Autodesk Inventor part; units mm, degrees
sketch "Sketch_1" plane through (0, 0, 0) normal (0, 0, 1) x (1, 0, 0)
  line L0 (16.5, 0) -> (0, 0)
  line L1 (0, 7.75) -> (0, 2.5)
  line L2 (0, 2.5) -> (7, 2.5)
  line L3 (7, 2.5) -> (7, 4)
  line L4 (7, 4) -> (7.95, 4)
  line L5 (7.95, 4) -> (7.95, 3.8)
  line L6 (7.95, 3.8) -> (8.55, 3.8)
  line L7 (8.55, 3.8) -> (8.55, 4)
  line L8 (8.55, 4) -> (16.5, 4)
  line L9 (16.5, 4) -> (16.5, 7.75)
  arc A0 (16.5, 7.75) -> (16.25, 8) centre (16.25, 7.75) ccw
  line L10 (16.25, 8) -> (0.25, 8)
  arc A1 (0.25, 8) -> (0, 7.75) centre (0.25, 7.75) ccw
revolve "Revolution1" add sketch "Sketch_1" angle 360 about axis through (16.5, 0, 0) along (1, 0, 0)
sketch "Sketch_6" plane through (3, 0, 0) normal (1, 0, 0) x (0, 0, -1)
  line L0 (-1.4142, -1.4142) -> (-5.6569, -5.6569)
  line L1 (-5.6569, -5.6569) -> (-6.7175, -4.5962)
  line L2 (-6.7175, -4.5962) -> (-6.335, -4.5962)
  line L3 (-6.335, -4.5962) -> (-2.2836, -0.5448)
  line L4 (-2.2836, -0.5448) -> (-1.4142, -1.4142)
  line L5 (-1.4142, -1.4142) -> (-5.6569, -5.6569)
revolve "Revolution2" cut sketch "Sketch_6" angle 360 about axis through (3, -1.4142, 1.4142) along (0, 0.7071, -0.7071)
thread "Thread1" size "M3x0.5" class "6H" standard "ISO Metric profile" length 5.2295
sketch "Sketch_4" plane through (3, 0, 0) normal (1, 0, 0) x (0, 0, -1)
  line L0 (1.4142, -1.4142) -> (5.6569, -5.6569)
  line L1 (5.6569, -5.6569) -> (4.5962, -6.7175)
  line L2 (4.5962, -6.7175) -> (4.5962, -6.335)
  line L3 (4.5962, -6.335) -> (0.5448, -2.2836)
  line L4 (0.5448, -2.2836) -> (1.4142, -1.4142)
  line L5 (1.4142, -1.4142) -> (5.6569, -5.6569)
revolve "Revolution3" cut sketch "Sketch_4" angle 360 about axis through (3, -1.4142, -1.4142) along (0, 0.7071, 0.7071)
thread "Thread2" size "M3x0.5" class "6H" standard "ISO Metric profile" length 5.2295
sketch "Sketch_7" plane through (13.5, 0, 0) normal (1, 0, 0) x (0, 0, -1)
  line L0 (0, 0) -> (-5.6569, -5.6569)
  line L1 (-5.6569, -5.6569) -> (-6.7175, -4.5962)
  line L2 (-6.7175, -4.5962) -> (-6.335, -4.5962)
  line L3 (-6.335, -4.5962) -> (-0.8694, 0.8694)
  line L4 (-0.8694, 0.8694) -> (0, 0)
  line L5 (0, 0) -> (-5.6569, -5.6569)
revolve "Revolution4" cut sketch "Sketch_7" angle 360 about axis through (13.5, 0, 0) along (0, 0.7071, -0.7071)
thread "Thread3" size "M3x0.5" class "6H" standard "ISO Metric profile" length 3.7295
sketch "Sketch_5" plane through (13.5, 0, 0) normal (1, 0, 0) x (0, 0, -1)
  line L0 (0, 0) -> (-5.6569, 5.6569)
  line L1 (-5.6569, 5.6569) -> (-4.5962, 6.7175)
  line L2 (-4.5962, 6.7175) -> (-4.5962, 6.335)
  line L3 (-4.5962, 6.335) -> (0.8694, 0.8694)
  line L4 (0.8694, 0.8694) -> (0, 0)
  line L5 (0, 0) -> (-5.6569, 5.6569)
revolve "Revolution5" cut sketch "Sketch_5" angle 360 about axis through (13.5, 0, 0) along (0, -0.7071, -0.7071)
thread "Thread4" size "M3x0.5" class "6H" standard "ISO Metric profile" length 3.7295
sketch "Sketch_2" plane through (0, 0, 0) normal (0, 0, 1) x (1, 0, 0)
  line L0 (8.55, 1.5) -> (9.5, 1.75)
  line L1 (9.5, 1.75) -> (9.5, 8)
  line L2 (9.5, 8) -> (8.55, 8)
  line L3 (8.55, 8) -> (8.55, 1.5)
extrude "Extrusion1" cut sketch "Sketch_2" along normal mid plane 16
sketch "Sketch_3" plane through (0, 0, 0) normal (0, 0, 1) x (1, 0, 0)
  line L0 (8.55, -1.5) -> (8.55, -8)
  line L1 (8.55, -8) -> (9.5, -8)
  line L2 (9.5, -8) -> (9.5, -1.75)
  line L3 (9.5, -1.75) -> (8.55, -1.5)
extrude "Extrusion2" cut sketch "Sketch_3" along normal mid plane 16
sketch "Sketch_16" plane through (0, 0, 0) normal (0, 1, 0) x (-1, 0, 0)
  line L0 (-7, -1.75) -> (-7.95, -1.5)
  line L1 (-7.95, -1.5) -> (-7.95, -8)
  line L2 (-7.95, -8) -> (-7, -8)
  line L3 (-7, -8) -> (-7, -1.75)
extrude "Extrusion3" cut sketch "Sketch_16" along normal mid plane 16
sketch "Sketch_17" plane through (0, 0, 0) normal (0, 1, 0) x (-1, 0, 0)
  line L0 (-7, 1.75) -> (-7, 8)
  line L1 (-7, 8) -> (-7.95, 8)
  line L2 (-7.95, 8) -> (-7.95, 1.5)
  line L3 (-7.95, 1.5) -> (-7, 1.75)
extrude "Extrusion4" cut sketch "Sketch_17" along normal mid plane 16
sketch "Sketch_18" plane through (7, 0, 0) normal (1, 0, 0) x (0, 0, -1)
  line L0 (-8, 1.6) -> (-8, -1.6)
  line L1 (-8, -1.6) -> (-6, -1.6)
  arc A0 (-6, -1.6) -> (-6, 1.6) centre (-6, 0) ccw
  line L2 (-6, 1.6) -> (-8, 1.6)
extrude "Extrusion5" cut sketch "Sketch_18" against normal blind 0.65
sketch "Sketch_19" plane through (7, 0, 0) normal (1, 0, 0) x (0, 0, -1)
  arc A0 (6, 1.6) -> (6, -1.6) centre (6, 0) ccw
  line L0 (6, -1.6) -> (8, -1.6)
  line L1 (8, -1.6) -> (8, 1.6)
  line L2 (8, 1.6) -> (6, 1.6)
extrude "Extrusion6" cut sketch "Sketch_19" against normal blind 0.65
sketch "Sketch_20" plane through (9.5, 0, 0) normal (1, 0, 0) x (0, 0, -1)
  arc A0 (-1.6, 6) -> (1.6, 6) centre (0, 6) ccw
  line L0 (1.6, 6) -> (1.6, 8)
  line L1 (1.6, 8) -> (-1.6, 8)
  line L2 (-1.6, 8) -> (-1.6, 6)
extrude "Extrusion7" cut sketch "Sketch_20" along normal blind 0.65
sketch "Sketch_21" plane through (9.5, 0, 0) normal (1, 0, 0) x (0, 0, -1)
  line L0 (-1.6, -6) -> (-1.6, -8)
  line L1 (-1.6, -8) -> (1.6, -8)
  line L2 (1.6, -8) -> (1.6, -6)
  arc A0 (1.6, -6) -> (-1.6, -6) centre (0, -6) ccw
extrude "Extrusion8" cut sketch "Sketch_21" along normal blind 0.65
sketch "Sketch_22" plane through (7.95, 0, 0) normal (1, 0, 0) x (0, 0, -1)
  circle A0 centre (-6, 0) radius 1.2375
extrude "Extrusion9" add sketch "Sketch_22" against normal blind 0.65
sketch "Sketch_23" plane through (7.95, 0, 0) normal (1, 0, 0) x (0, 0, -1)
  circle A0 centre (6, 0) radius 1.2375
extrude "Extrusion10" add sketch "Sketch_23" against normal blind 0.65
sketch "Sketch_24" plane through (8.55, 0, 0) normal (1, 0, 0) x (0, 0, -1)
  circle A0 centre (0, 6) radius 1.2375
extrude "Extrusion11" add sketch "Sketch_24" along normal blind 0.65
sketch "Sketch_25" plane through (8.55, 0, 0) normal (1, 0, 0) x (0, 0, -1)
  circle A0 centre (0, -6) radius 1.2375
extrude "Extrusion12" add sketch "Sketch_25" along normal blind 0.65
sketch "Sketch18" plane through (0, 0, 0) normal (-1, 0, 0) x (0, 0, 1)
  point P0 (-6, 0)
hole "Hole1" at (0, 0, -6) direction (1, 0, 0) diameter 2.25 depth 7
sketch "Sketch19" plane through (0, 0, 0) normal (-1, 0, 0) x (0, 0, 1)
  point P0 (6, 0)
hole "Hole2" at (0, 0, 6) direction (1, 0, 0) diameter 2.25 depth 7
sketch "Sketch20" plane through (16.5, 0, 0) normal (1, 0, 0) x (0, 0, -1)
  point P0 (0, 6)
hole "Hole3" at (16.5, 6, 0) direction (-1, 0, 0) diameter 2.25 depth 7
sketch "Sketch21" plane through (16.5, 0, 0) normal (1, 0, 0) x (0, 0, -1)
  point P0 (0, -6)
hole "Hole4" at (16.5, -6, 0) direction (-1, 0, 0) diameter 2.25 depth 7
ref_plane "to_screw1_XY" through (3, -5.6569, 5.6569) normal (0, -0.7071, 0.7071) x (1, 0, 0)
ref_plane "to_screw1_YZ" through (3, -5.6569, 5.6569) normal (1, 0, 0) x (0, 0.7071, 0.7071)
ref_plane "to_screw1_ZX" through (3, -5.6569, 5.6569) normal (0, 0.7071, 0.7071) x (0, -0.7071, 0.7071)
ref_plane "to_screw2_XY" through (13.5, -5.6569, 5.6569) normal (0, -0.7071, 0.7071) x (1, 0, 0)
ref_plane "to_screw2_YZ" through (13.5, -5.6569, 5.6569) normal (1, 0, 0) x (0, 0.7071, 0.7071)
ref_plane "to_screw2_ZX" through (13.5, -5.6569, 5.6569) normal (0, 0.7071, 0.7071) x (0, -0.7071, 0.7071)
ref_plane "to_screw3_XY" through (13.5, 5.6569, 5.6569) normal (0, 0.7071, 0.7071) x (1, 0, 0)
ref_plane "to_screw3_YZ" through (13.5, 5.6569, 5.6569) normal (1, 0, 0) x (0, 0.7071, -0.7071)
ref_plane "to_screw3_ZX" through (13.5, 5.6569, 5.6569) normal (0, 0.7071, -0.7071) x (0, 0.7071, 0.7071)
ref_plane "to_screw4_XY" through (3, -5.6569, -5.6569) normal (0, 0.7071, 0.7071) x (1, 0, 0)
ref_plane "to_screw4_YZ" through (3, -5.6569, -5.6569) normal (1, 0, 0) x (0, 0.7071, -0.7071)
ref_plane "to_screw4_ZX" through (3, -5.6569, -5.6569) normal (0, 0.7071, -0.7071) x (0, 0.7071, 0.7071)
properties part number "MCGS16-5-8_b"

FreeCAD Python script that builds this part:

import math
import FreeCAD as App
import Part
import Sketcher
Q = App.Units.Quantity

doc = App.newDocument("Part")
params = doc.addObject("Spreadsheet::Sheet", "Params")
for row, (alias, value) in enumerate([
    ("sketch1_width", "7 mm"),
    ("sketch1_width2", "16 mm"),
    ("sketch1_radius", "0.25 mm"),
    ("sketch1_width3", "0.6 mm"),
    ("sketch1_height", "1.5 mm"),
    ("revolution_angle", "360 deg"),
    ("sketch2_length", "6 mm"),
    ("sketch2_length2", "1.5 mm"),
    ("groove_angle", "360 deg"),
    ("sketch3_length", "6 mm"),
    ("sketch3_length2", "1.5 mm"),
    ("groove2_angle", "360 deg"),
    ("sketch4_length", "8 mm"),
    ("sketch4_length2", "1.5 mm"),
    ("groove3_angle", "360 deg"),
    ("sketch5_length", "8 mm"),
    ("sketch5_length2", "1.5 mm"),
    ("groove4_angle", "360 deg"),
    ("sketch6_height", "6.5 mm"),
    ("sketch6_width", "0.95 mm"),
    ("sketch6_height2", "6.25 mm"),
    ("pocket1_length", "16 mm"),
    ("sketch7_height", "6.5 mm"),
    ("sketch7_width", "0.95 mm"),
    ("sketch7_height2", "6.25 mm"),
    ("pocket2_length", "16 mm"),
    ("sketch8_height", "6.5 mm"),
    ("sketch8_width", "0.95 mm"),
    ("sketch8_height2", "6.25 mm"),
    ("pocket3_length", "16 mm"),
    ("sketch9_height", "6.5 mm"),
    ("sketch9_width", "0.95 mm"),
    ("sketch9_height2", "6.25 mm"),
    ("pocket4_length", "16 mm"),
    ("sketch10_radius", "1.6 mm"),
    ("sketch10_height", "2 mm"),
    ("pocket5_length", "0.65 mm"),
    ("sketch11_radius", "1.6 mm"),
    ("sketch11_height", "2 mm"),
    ("pocket6_length", "0.65 mm"),
    ("sketch12_radius", "1.6 mm"),
    ("sketch12_width", "2 mm"),
    ("pocket7_length", "0.65 mm"),
    ("sketch13_radius", "1.6 mm"),
    ("sketch13_width", "2 mm"),
    ("pocket8_length", "0.65 mm"),
    ("pad1_length", "0.65 mm"),
    ("pad2_length", "0.65 mm"),
    ("pad3_length", "0.65 mm"),
    ("pad4_length", "0.65 mm"),
    ("sketch18_diameter", "2.25 mm"),
    ("hole_diameter", "2.25 mm"),
    ("hole_depth", "7 mm"),
    ("sketch19_diameter", "2.25 mm"),
    ("hole2_diameter", "2.25 mm"),
    ("hole2_depth", "7 mm"),
    ("sketch20_diameter", "2.25 mm"),
    ("hole3_diameter", "2.25 mm"),
    ("hole3_depth", "7 mm"),
    ("sketch21_diameter", "2.25 mm"),
    ("hole4_diameter", "2.25 mm"),
    ("hole4_depth", "7 mm"),
], start=1):
    params.set(f"A{row}", alias)
    params.set(f"B{row}", "=" + value)
    params.setAlias(f"B{row}", alias)

body = doc.addObject("PartDesign::Body", "Body")

# Sketch on XY plane
sketch1 = body.newObject("Sketcher::SketchObject", "Sketch")
sketch1.AttachmentSupport = (doc.getObject("XY_Plane"), [""])
sketch1.MapMode = "FlatFace"
sketch1.addGeometry([
    Part.ArcOfCircle(Part.Circle(App.Vector(0.25, 7.75, 0), App.Vector(0, 0, 1), 0.25), math.radians(90), math.radians(180)),  # 0
    Part.LineSegment(App.Vector(0, 7.75, 0), App.Vector(0, 2.5, 0)),  # 1
    Part.LineSegment(App.Vector(0, 2.5, 0), App.Vector(7, 2.5, 0)),  # 2
    Part.LineSegment(App.Vector(7, 2.5, 0), App.Vector(7, 4, 0)),  # 3
    Part.LineSegment(App.Vector(7, 4, 0), App.Vector(7.95, 4, 0)),  # 4
    Part.LineSegment(App.Vector(7.95, 4, 0), App.Vector(7.95, 3.8, 0)),  # 5
    Part.LineSegment(App.Vector(7.95, 3.8, 0), App.Vector(8.55, 3.8, 0)),  # 6
    Part.LineSegment(App.Vector(8.55, 3.8, 0), App.Vector(8.55, 4, 0)),  # 7
    Part.LineSegment(App.Vector(8.55, 4, 0), App.Vector(16.5, 4, 0)),  # 8
    Part.LineSegment(App.Vector(16.5, 4, 0), App.Vector(16.5, 7.75, 0)),  # 9
    Part.ArcOfCircle(Part.Circle(App.Vector(16.25, 7.75, 0), App.Vector(0, 0, 1), 0.25), math.radians(0), math.radians(90)),  # 10
    Part.LineSegment(App.Vector(16.25, 8, 0), App.Vector(0.25, 8, 0)),  # 11
], False)
sketch1.addConstraint([
    Sketcher.Constraint("Tangent", 0, 2, 1, 1),
    Sketcher.Constraint("Coincident", 1, 2, 2, 1),
    Sketcher.Constraint("Coincident", 2, 2, 3, 1),
    Sketcher.Constraint("Coincident", 3, 2, 4, 1),
    Sketcher.Constraint("Coincident", 4, 2, 5, 1),
    Sketcher.Constraint("Coincident", 5, 2, 6, 1),
    Sketcher.Constraint("Coincident", 6, 2, 7, 1),
    Sketcher.Constraint("Coincident", 7, 2, 8, 1),
    Sketcher.Constraint("Coincident", 8, 2, 9, 1),
    Sketcher.Constraint("Tangent", 9, 2, 10, 1),
    Sketcher.Constraint("Tangent", 10, 2, 11, 1),
    Sketcher.Constraint("Tangent", 11, 2, 0, 1),
    Sketcher.Constraint("Vertical", 1),
    Sketcher.Constraint("Horizontal", 2),
    Sketcher.Constraint("Vertical", 3),
    Sketcher.Constraint("Horizontal", 4),
    Sketcher.Constraint("Vertical", 5),
    Sketcher.Constraint("Horizontal", 6),
    Sketcher.Constraint("Vertical", 7),
    Sketcher.Constraint("Horizontal", 8),
    Sketcher.Constraint("Vertical", 9),
    Sketcher.Constraint("Horizontal", 11),
    Sketcher.Constraint("Equal", 0, 10),
    Sketcher.Constraint("PointOnObject", 0, 2, -2),
    Sketcher.Constraint("Horizontal", 4, 2, 7, 2),
    Sketcher.Constraint("DistanceX", 2, 1, 2, 2, Q("7 mm")),
    Sketcher.Constraint("DistanceX", 11, 2, 11, 1, Q("16 mm")),
    Sketcher.Constraint("Radius", 0, Q("0.25 mm")),
    Sketcher.Constraint("DistanceX", 6, 1, 6, 2, Q("0.6 mm")),
    Sketcher.Constraint("DistanceY", 3, 1, 3, 2, Q("1.5 mm")),
    Sketcher.Constraint("DistanceY", 5, 2, 5, 1, Q("0.2 mm")),
    Sketcher.Constraint("DistanceY", -1, 1, 3, 2, Q("4 mm")),
    Sketcher.Constraint("DistanceY", -1, 1, 10, 2, Q("8 mm")),
    Sketcher.Constraint("DistanceX", 4, 1, 4, 2, Q("0.95 mm")),
])
sketch1.setExpression("Constraints[25]", "Params.sketch1_width")
sketch1.setExpression("Constraints[26]", "Params.sketch1_width2")
sketch1.setExpression("Constraints[27]", "Params.sketch1_radius")
sketch1.setExpression("Constraints[28]", "Params.sketch1_width3")
sketch1.setExpression("Constraints[29]", "Params.sketch1_height")
revolution = body.newObject("PartDesign::Revolution", "Revolution")
revolution.Profile = sketch1
revolution.ReferenceAxis = (sketch1, ["H_Axis"])
revolution.setExpression("Angle", "Params.revolution_angle")

# Sketch on YZ plane
sketch2 = body.newObject("Sketcher::SketchObject", "Sketch001")
sketch2.AttachmentSupport = (doc.getObject("YZ_Plane"), [""])
sketch2.MapMode = "FlatFace"
sketch2.AttachmentOffset = App.Placement(App.Vector(0, 0, 3), App.Rotation())
sketch2.addGeometry([
    Part.LineSegment(App.Vector(-5.66, 5.66, 0), App.Vector(-1.41, 1.41, 0)),  # 0
    Part.LineSegment(App.Vector(-1.41, 1.41, 0), App.Vector(-0.54, 2.28, 0)),  # 1
    Part.LineSegment(App.Vector(-0.54, 2.28, 0), App.Vector(-4.6, 6.33, 0)),  # 2
    Part.LineSegment(App.Vector(-4.6, 6.33, 0), App.Vector(-4.6, 6.72, 0)),  # 3
    Part.LineSegment(App.Vector(-4.6, 6.72, 0), App.Vector(-5.66, 5.66, 0)),  # 4
], False)
sketch2.addGeometry(Part.LineSegment(App.Vector(-5.66, 5.66, 0), App.Vector(-1.41, 1.41, 0)), True)  # axis
sketch2.addConstraint([
    Sketcher.Constraint("Coincident", 0, 2, 1, 1),
    Sketcher.Constraint("Coincident", 1, 2, 2, 1),
    Sketcher.Constraint("Coincident", 2, 2, 3, 1),
    Sketcher.Constraint("Coincident", 3, 2, 4, 1),
    Sketcher.Constraint("Coincident", 4, 2, 0, 1),
    Sketcher.Constraint("Vertical", 3),
    Sketcher.Constraint("Coincident", 5, 1, 4, 2),
    Sketcher.Constraint("Coincident", 5, 2, 0, 2),
    Sketcher.Constraint("Perpendicular", 0, 1),
    Sketcher.Constraint("Perpendicular", 1, 2),
    Sketcher.Constraint("Perpendicular", 2, 4),
    Sketcher.Constraint("Angle", 0, Q("-45 deg")),
    Sketcher.Constraint("Distance", 0, Q("6 mm")),
    Sketcher.Constraint("Distance", 4, Q("1.5 mm")),
    Sketcher.Constraint("DistanceY", 3, 1, 3, 2, Q("0.3825 mm")),
    Sketcher.Constraint("DistanceY", -1, 1, 2, 2, Q("6.335 mm")),
    Sketcher.Constraint("DistanceX", 4, 2, -1, 1, Q("5.657 mm")),
])
sketch2.setExpression("Constraints[12]", "Params.sketch2_length")
sketch2.setExpression("Constraints[13]", "Params.sketch2_length2")
groove = body.newObject("PartDesign::Groove", "Groove")
groove.Profile = sketch2
groove.ReferenceAxis = (sketch2, ["Axis0"])
groove.setExpression("Angle", "Params.groove_angle")

# Sketch on YZ plane
sketch3 = body.newObject("Sketcher::SketchObject", "Sketch002")
sketch3.AttachmentSupport = (doc.getObject("YZ_Plane"), [""])
sketch3.MapMode = "FlatFace"
sketch3.AttachmentOffset = App.Placement(App.Vector(0, 0, 3), App.Rotation())
sketch3.addGeometry([
    Part.LineSegment(App.Vector(-5.66, -5.66, 0), App.Vector(-1.41, -1.41, 0)),  # 0
    Part.LineSegment(App.Vector(-1.41, -1.41, 0), App.Vector(-2.28, -0.54, 0)),  # 1
    Part.LineSegment(App.Vector(-2.28, -0.54, 0), App.Vector(-6.33, -4.6, 0)),  # 2
    Part.LineSegment(App.Vector(-6.33, -4.6, 0), App.Vector(-6.72, -4.6, 0)),  # 3
    Part.LineSegment(App.Vector(-6.72, -4.6, 0), App.Vector(-5.66, -5.66, 0)),  # 4
], False)
sketch3.addGeometry(Part.LineSegment(App.Vector(-5.66, -5.66, 0), App.Vector(-1.41, -1.41, 0)), True)  # axis
sketch3.addConstraint([
    Sketcher.Constraint("Coincident", 0, 2, 1, 1),
    Sketcher.Constraint("Coincident", 1, 2, 2, 1),
    Sketcher.Constraint("Coincident", 2, 2, 3, 1),
    Sketcher.Constraint("Coincident", 3, 2, 4, 1),
    Sketcher.Constraint("Coincident", 4, 2, 0, 1),
    Sketcher.Constraint("Horizontal", 3),
    Sketcher.Constraint("Coincident", 5, 1, 4, 2),
    Sketcher.Constraint("Coincident", 5, 2, 0, 2),
    Sketcher.Constraint("Perpendicular", 0, 1),
    Sketcher.Constraint("Perpendicular", 1, 2),
    Sketcher.Constraint("Perpendicular", 2, 4),
    Sketcher.Constraint("Angle", 0, Q("45 deg")),
    Sketcher.Constraint("Distance", 0, Q("6 mm")),
    Sketcher.Constraint("Distance", 4, Q("1.5 mm")),
    Sketcher.Constraint("DistanceX", 3, 2, 3, 1, Q("0.3825 mm")),
    Sketcher.Constraint("DistanceX", 2, 2, -1, 1, Q("6.335 mm")),
    Sketcher.Constraint("DistanceY", 4, 2, -1, 1, Q("5.657 mm")),
])
sketch3.setExpression("Constraints[12]", "Params.sketch3_length")
sketch3.setExpression("Constraints[13]", "Params.sketch3_length2")
groove2 = body.newObject("PartDesign::Groove", "Groove001")
groove2.Profile = sketch3
groove2.ReferenceAxis = (sketch3, ["Axis0"])
groove2.setExpression("Angle", "Params.groove2_angle")

# Sketch on YZ plane
sketch4 = body.newObject("Sketcher::SketchObject", "Sketch003")
sketch4.AttachmentSupport = (doc.getObject("YZ_Plane"), [""])
sketch4.MapMode = "FlatFace"
sketch4.AttachmentOffset = App.Placement(App.Vector(0, 0, 13.5), App.Rotation())
sketch4.addGeometry([
    Part.LineSegment(App.Vector(-5.66, 5.66, 0), App.Vector(0, 0, 0)),  # 0
    Part.LineSegment(App.Vector(0, 0, 0), App.Vector(0.87, 0.87, 0)),  # 1
    Part.LineSegment(App.Vector(0.87, 0.87, 0), App.Vector(-4.6, 6.33, 0)),  # 2
    Part.LineSegment(App.Vector(-4.6, 6.33, 0), App.Vector(-4.6, 6.72, 0)),  # 3
    Part.LineSegment(App.Vector(-4.6, 6.72, 0), App.Vector(-5.66, 5.66, 0)),  # 4
], False)
sketch4.addGeometry(Part.LineSegment(App.Vector(-5.66, 5.66, 0), App.Vector(0, 0, 0)), True)  # axis
sketch4.addConstraint([
    Sketcher.Constraint("Coincident", 0, 2, 1, 1),
    Sketcher.Constraint("Coincident", 1, 2, 2, 1),
    Sketcher.Constraint("Coincident", 2, 2, 3, 1),
    Sketcher.Constraint("Coincident", 3, 2, 4, 1),
    Sketcher.Constraint("Coincident", 4, 2, 0, 1),
    Sketcher.Constraint("Vertical", 3),
    Sketcher.Constraint("Coincident", 0, 2, -1, 1),
    Sketcher.Constraint("Coincident", 5, 2, -1, 1),
    Sketcher.Constraint("Coincident", 5, 1, 4, 2),
    Sketcher.Constraint("Perpendicular", 0, 1),
    Sketcher.Constraint("Perpendicular", 1, 2),
    Sketcher.Constraint("Perpendicular", 2, 4),
    Sketcher.Constraint("Angle", 0, Q("-45 deg")),
    Sketcher.Constraint("Distance", 0, Q("8 mm")),
    Sketcher.Constraint("Distance", 4, Q("1.5 mm")),
    Sketcher.Constraint("DistanceY", 3, 1, 3, 2, Q("0.3825 mm")),
])
sketch4.setExpression("Constraints[13]", "Params.sketch4_length")
sketch4.setExpression("Constraints[14]", "Params.sketch4_length2")
groove3 = body.newObject("PartDesign::Groove", "Groove002")
groove3.Profile = sketch4
groove3.ReferenceAxis = (sketch4, ["Axis0"])
groove3.setExpression("Angle", "Params.groove3_angle")

# Sketch on YZ plane
sketch5 = body.newObject("Sketcher::SketchObject", "Sketch004")
sketch5.AttachmentSupport = (doc.getObject("YZ_Plane"), [""])
sketch5.MapMode = "FlatFace"
sketch5.AttachmentOffset = App.Placement(App.Vector(0, 0, 13.5), App.Rotation())
sketch5.addGeometry([
    Part.LineSegment(App.Vector(5.66, 5.66, 0), App.Vector(0, 0, 0)),  # 0
    Part.LineSegment(App.Vector(0, 0, 0), App.Vector(0.87, -0.87, 0)),  # 1
    Part.LineSegment(App.Vector(0.87, -0.87, 0), App.Vector(6.33, 4.6, 0)),  # 2
    Part.LineSegment(App.Vector(6.33, 4.6, 0), App.Vector(6.72, 4.6, 0)),  # 3
    Part.LineSegment(App.Vector(6.72, 4.6, 0), App.Vector(5.66, 5.66, 0)),  # 4
], False)
sketch5.addGeometry(Part.LineSegment(App.Vector(5.66, 5.66, 0), App.Vector(0, 0, 0)), True)  # axis
sketch5.addConstraint([
    Sketcher.Constraint("Coincident", 0, 2, 1, 1),
    Sketcher.Constraint("Coincident", 1, 2, 2, 1),
    Sketcher.Constraint("Coincident", 2, 2, 3, 1),
    Sketcher.Constraint("Coincident", 3, 2, 4, 1),
    Sketcher.Constraint("Coincident", 4, 2, 0, 1),
    Sketcher.Constraint("Horizontal", 3),
    Sketcher.Constraint("Coincident", 0, 2, -1, 1),
    Sketcher.Constraint("Coincident", 5, 2, -1, 1),
    Sketcher.Constraint("Coincident", 5, 1, 4, 2),
    Sketcher.Constraint("Perpendicular", 0, 1),
    Sketcher.Constraint("Perpendicular", 1, 2),
    Sketcher.Constraint("Perpendicular", 2, 4),
    Sketcher.Constraint("Angle", 0, Q("-135 deg")),
    Sketcher.Constraint("Distance", 0, Q("8 mm")),
    Sketcher.Constraint("Distance", 4, Q("1.5 mm")),
    Sketcher.Constraint("DistanceX", 3, 1, 3, 2, Q("0.3825 mm")),
])
sketch5.setExpression("Constraints[13]", "Params.sketch5_length")
sketch5.setExpression("Constraints[14]", "Params.sketch5_length2")
groove4 = body.newObject("PartDesign::Groove", "Groove003")
groove4.Profile = sketch5
groove4.ReferenceAxis = (sketch5, ["Axis0"])
groove4.setExpression("Angle", "Params.groove4_angle")

# Sketch on XY plane
sketch6 = body.newObject("Sketcher::SketchObject", "Sketch005")
sketch6.AttachmentSupport = (doc.getObject("XY_Plane"), [""])
sketch6.MapMode = "FlatFace"
sketch6.addGeometry([
    Part.LineSegment(App.Vector(8.6, 8, 0), App.Vector(8.6, 1.5, 0)),
    Part.LineSegment(App.Vector(8.6, 1.5, 0), App.Vector(9.5, 1.8, 0)),
    Part.LineSegment(App.Vector(9.5, 1.8, 0), App.Vector(9.5, 8, 0)),
    Part.LineSegment(App.Vector(9.5, 8, 0), App.Vector(8.6, 8, 0)),
], False)
sketch6.addConstraint([
    Sketcher.Constraint("Coincident", 0, 2, 1, 1),
    Sketcher.Constraint("Coincident", 1, 2, 2, 1),
    Sketcher.Constraint("Coincident", 2, 2, 3, 1),
    Sketcher.Constraint("Coincident", 3, 2, 0, 1),
    Sketcher.Constraint("Vertical", 0),
    Sketcher.Constraint("Vertical", 2),
    Sketcher.Constraint("Horizontal", 3),
    Sketcher.Constraint("DistanceY", 0, 2, 0, 1, Q("6.5 mm")),
    Sketcher.Constraint("DistanceY", -1, 1, 2, 2, Q("8 mm")),
    Sketcher.Constraint("DistanceX", 3, 2, 3, 1, Q("0.95 mm")),
    Sketcher.Constraint("DistanceY", 2, 1, 2, 2, Q("6.25 mm")),
    Sketcher.Constraint("DistanceX", -1, 1, 1, 2, Q("9.5 mm")),
])
sketch6.setExpression("Constraints[7]", "Params.sketch6_height")
sketch6.setExpression("Constraints[9]", "Params.sketch6_width")
sketch6.setExpression("Constraints[10]", "Params.sketch6_height2")
pocket1 = body.newObject("PartDesign::Pocket", "Pocket")
pocket1.Profile = sketch6
pocket1.setExpression("Length", "Params.pocket1_length")
pocket1.Midplane = True

# Sketch on XY plane
sketch7 = body.newObject("Sketcher::SketchObject", "Sketch006")
sketch7.AttachmentSupport = (doc.getObject("XY_Plane"), [""])
sketch7.MapMode = "FlatFace"
sketch7.addGeometry([
    Part.LineSegment(App.Vector(9.5, -1.8, 0), App.Vector(8.6, -1.5, 0)),
    Part.LineSegment(App.Vector(8.6, -1.5, 0), App.Vector(8.6, -8, 0)),
    Part.LineSegment(App.Vector(8.6, -8, 0), App.Vector(9.5, -8, 0)),
    Part.LineSegment(App.Vector(9.5, -8, 0), App.Vector(9.5, -1.8, 0)),
], False)
sketch7.addConstraint([
    Sketcher.Constraint("Coincident", 0, 2, 1, 1),
    Sketcher.Constraint("Coincident", 1, 2, 2, 1),
    Sketcher.Constraint("Coincident", 2, 2, 3, 1),
    Sketcher.Constraint("Coincident", 3, 2, 0, 1),
    Sketcher.Constraint("Vertical", 1),
    Sketcher.Constraint("Horizontal", 2),
    Sketcher.Constraint("Vertical", 3),
    Sketcher.Constraint("DistanceY", 1, 2, 1, 1, Q("6.5 mm")),
    Sketcher.Constraint("DistanceY", 1, 2, -1, 1, Q("8 mm")),
    Sketcher.Constraint("DistanceX", 2, 1, 2, 2, Q("0.95 mm")),
    Sketcher.Constraint("DistanceY", 3, 1, 3, 2, Q("6.25 mm")),
    Sketcher.Constraint("DistanceX", -1, 1, 2, 2, Q("9.5 mm")),
])
sketch7.setExpression("Constraints[7]", "Params.sketch7_height")
sketch7.setExpression("Constraints[9]", "Params.sketch7_width")
sketch7.setExpression("Constraints[10]", "Params.sketch7_height2")
pocket2 = body.newObject("PartDesign::Pocket", "Pocket001")
pocket2.Profile = sketch7
pocket2.setExpression("Length", "Params.pocket2_length")
pocket2.Midplane = True

# Sketch on XZ plane
sketch8 = body.newObject("Sketcher::SketchObject", "Sketch007")
sketch8.AttachmentSupport = (doc.getObject("XZ_Plane"), [""])
sketch8.MapMode = "FlatFace"
sketch8.addGeometry([
    Part.LineSegment(App.Vector(7, -8, 0), App.Vector(7, -1.8, 0)),
    Part.LineSegment(App.Vector(7, -1.8, 0), App.Vector(8, -1.5, 0)),
    Part.LineSegment(App.Vector(8, -1.5, 0), App.Vector(8, -8, 0)),
    Part.LineSegment(App.Vector(8, -8, 0), App.Vector(7, -8, 0)),
], False)
sketch8.addConstraint([
    Sketcher.Constraint("Coincident", 0, 2, 1, 1),
    Sketcher.Constraint("Coincident", 1, 2, 2, 1),
    Sketcher.Constraint("Coincident", 2, 2, 3, 1),
    Sketcher.Constraint("Coincident", 3, 2, 0, 1),
    Sketcher.Constraint("Vertical", 0),
    Sketcher.Constraint("Vertical", 2),
    Sketcher.Constraint("Horizontal", 3),
    Sketcher.Constraint("DistanceY", 2, 2, 2, 1, Q("6.5 mm")),
    Sketcher.Constraint("DistanceX", -1, 1, 0, 2, Q("7 mm")),
    Sketcher.Constraint("DistanceY", 2, 2, -1, 1, Q("8 mm")),
    Sketcher.Constraint("DistanceX", 3, 2, 3, 1, Q("0.95 mm")),
    Sketcher.Constraint("DistanceY", 0, 1, 0, 2, Q("6.25 mm")),
])
sketch8.setExpression("Constraints[7]", "Params.sketch8_height")
sketch8.setExpression("Constraints[10]", "Params.sketch8_width")
sketch8.setExpression("Constraints[11]", "Params.sketch8_height2")
pocket3 = body.newObject("PartDesign::Pocket", "Pocket002")
pocket3.Profile = sketch8
pocket3.setExpression("Length", "Params.pocket3_length")
pocket3.Midplane = True

# Sketch on XZ plane
sketch9 = body.newObject("Sketcher::SketchObject", "Sketch008")
sketch9.AttachmentSupport = (doc.getObject("XZ_Plane"), [""])
sketch9.MapMode = "FlatFace"
sketch9.addGeometry([
    Part.LineSegment(App.Vector(8, 1.5, 0), App.Vector(7, 1.8, 0)),
    Part.LineSegment(App.Vector(7, 1.8, 0), App.Vector(7, 8, 0)),
    Part.LineSegment(App.Vector(7, 8, 0), App.Vector(8, 8, 0)),
    Part.LineSegment(App.Vector(8, 8, 0), App.Vector(8, 1.5, 0)),
], False)
sketch9.addConstraint([
    Sketcher.Constraint("Coincident", 0, 2, 1, 1),
    Sketcher.Constraint("Coincident", 1, 2, 2, 1),
    Sketcher.Constraint("Coincident", 2, 2, 3, 1),
    Sketcher.Constraint("Coincident", 3, 2, 0, 1),
    Sketcher.Constraint("Vertical", 1),
    Sketcher.Constraint("Horizontal", 2),
    Sketcher.Constraint("Vertical", 3),
    Sketcher.Constraint("DistanceY", 3, 2, 3, 1, Q("6.5 mm")),
    Sketcher.Constraint("DistanceX", -1, 1, 0, 2, Q("7 mm")),
    Sketcher.Constraint("DistanceY", -1, 1, 1, 2, Q("8 mm")),
    Sketcher.Constraint("DistanceX", 2, 1, 2, 2, Q("0.95 mm")),
    Sketcher.Constraint("DistanceY", 1, 1, 1, 2, Q("6.25 mm")),
])
sketch9.setExpression("Constraints[7]", "Params.sketch9_height")
sketch9.setExpression("Constraints[10]", "Params.sketch9_width")
sketch9.setExpression("Constraints[11]", "Params.sketch9_height2")
pocket4 = body.newObject("PartDesign::Pocket", "Pocket003")
pocket4.Profile = sketch9
pocket4.setExpression("Length", "Params.pocket4_length")
pocket4.Midplane = True

# Sketch on YZ plane
sketch10 = body.newObject("Sketcher::SketchObject", "Sketch009")
sketch10.AttachmentSupport = (doc.getObject("YZ_Plane"), [""])
sketch10.MapMode = "FlatFace"
sketch10.AttachmentOffset = App.Placement(App.Vector(0, 0, 7), App.Rotation())
sketch10.addGeometry([
    Part.LineSegment(App.Vector(1.6, 6, 0), App.Vector(1.6, 8, 0)),
    Part.LineSegment(App.Vector(1.6, 8, 0), App.Vector(-1.6, 8, 0)),
    Part.LineSegment(App.Vector(-1.6, 8, 0), App.Vector(-1.6, 6, 0)),
    Part.ArcOfCircle(Part.Circle(App.Vector(0, 6, 0), App.Vector(0, 0, 1), 1.6), math.radians(180), math.radians(360)),
], False)
sketch10.addConstraint([
    Sketcher.Constraint("Coincident", 0, 2, 1, 1),
    Sketcher.Constraint("Coincident", 1, 2, 2, 1),
    Sketcher.Constraint("Tangent", 2, 2, 3, 1),
    Sketcher.Constraint("Tangent", 3, 2, 0, 1),
    Sketcher.Constraint("Vertical", 0),
    Sketcher.Constraint("Horizontal", 1),
    Sketcher.Constraint("Vertical", 2),
    Sketcher.Constraint("PointOnObject", 3, 3, -2),
    Sketcher.Constraint("Radius", 3, Q("1.6 mm")),
    Sketcher.Constraint("DistanceY", 0, 1, 0, 2, Q("2 mm")),
    Sketcher.Constraint("DistanceY", -1, 1, 3, 3, Q("6 mm")),
])
sketch10.setExpression("Constraints[8]", "Params.sketch10_radius")
sketch10.setExpression("Constraints[9]", "Params.sketch10_height")
pocket5 = body.newObject("PartDesign::Pocket", "Pocket004")
pocket5.Profile = sketch10
pocket5.setExpression("Length", "Params.pocket5_length")

# Sketch on YZ plane
sketch11 = body.newObject("Sketcher::SketchObject", "Sketch010")
sketch11.AttachmentSupport = (doc.getObject("YZ_Plane"), [""])
sketch11.MapMode = "FlatFace"
sketch11.AttachmentOffset = App.Placement(App.Vector(0, 0, 7), App.Rotation())
sketch11.addGeometry([
    Part.LineSegment(App.Vector(1.6, -8, 0), App.Vector(1.6, -6, 0)),
    Part.ArcOfCircle(Part.Circle(App.Vector(0, -6, 0), App.Vector(0, 0, 1), 1.6), math.radians(0), math.radians(180)),
    Part.LineSegment(App.Vector(-1.6, -6, 0), App.Vector(-1.6, -8, 0)),
    Part.LineSegment(App.Vector(-1.6, -8, 0), App.Vector(1.6, -8, 0)),
], False)
sketch11.addConstraint([
    Sketcher.Constraint("Tangent", 0, 2, 1, 1),
    Sketcher.Constraint("Tangent", 1, 2, 2, 1),
    Sketcher.Constraint("Coincident", 2, 2, 3, 1),
    Sketcher.Constraint("Coincident", 3, 2, 0, 1),
    Sketcher.Constraint("Vertical", 0),
    Sketcher.Constraint("Vertical", 2),
    Sketcher.Constraint("Horizontal", 3),
    Sketcher.Constraint("PointOnObject", 1, 3, -2),
    Sketcher.Constraint("Radius", 1, Q("1.6 mm")),
    Sketcher.Constraint("DistanceY", 0, 1, 0, 2, Q("2 mm")),
    Sketcher.Constraint("DistanceY", 1, 3, -1, 1, Q("6 mm")),
])
sketch11.setExpression("Constraints[8]", "Params.sketch11_radius")
sketch11.setExpression("Constraints[9]", "Params.sketch11_height")
pocket6 = body.newObject("PartDesign::Pocket", "Pocket005")
pocket6.Profile = sketch11
pocket6.setExpression("Length", "Params.pocket6_length")

# Sketch on YZ plane
sketch12 = body.newObject("Sketcher::SketchObject", "Sketch011")
sketch12.AttachmentSupport = (doc.getObject("YZ_Plane"), [""])
sketch12.MapMode = "FlatFace"
sketch12.AttachmentOffset = App.Placement(App.Vector(0, 0, 9.5), App.Rotation())
sketch12.addGeometry([
    Part.LineSegment(App.Vector(8, 1.6, 0), App.Vector(6, 1.6, 0)),
    Part.ArcOfCircle(Part.Circle(App.Vector(6, 0, 0), App.Vector(0, 0, 1), 1.6), math.radians(90), math.radians(270)),
    Part.LineSegment(App.Vector(6, -1.6, 0), App.Vector(8, -1.6, 0)),
    Part.LineSegment(App.Vector(8, -1.6, 0), App.Vector(8, 1.6, 0)),
], False)
sketch12.addConstraint([
    Sketcher.Constraint("Tangent", 0, 2, 1, 1),
    Sketcher.Constraint("Tangent", 1, 2, 2, 1),
    Sketcher.Constraint("Coincident", 2, 2, 3, 1),
    Sketcher.Constraint("Coincident", 3, 2, 0, 1),
    Sketcher.Constraint("Horizontal", 0),
    Sketcher.Constraint("Horizontal", 2),
    Sketcher.Constraint("Vertical", 3),
    Sketcher.Constraint("PointOnObject", 1, 3, -1),
    Sketcher.Constraint("Radius", 1, Q("1.6 mm")),
    Sketcher.Constraint("DistanceX", 0, 2, 0, 1, Q("2 mm")),
    Sketcher.Constraint("DistanceX", -1, 1, 1, 3, Q("6 mm")),
])
sketch12.setExpression("Constraints[8]", "Params.sketch12_radius")
sketch12.setExpression("Constraints[9]", "Params.sketch12_width")
pocket7 = body.newObject("PartDesign::Pocket", "Pocket006")
pocket7.Profile = sketch12
pocket7.setExpression("Length", "Params.pocket7_length")
pocket7.Reversed = True

# Sketch on YZ plane
sketch13 = body.newObject("Sketcher::SketchObject", "Sketch012")
sketch13.AttachmentSupport = (doc.getObject("YZ_Plane"), [""])
sketch13.MapMode = "FlatFace"
sketch13.AttachmentOffset = App.Placement(App.Vector(0, 0, 9.5), App.Rotation())
sketch13.addGeometry([
    Part.ArcOfCircle(Part.Circle(App.Vector(-6, 0, 0), App.Vector(0, 0, 1), 1.6), math.radians(-90), math.radians(90)),
    Part.LineSegment(App.Vector(-6, 1.6, 0), App.Vector(-8, 1.6, 0)),
    Part.LineSegment(App.Vector(-8, 1.6, 0), App.Vector(-8, -1.6, 0)),
    Part.LineSegment(App.Vector(-8, -1.6, 0), App.Vector(-6, -1.6, 0)),
], False)
sketch13.addConstraint([
    Sketcher.Constraint("Tangent", 0, 2, 1, 1),
    Sketcher.Constraint("Coincident", 1, 2, 2, 1),
    Sketcher.Constraint("Coincident", 2, 2, 3, 1),
    Sketcher.Constraint("Tangent", 3, 2, 0, 1),
    Sketcher.Constraint("Horizontal", 1),
    Sketcher.Constraint("Vertical", 2),
    Sketcher.Constraint("Horizontal", 3),
    Sketcher.Constraint("PointOnObject", 0, 3, -1),
    Sketcher.Constraint("Radius", 0, Q("1.6 mm")),
    Sketcher.Constraint("DistanceX", 1, 2, 1, 1, Q("2 mm")),
    Sketcher.Constraint("DistanceX", 0, 3, -1, 1, Q("6 mm")),
])
sketch13.setExpression("Constraints[8]", "Params.sketch13_radius")
sketch13.setExpression("Constraints[9]", "Params.sketch13_width")
pocket8 = body.newObject("PartDesign::Pocket", "Pocket007")
pocket8.Profile = sketch13
pocket8.setExpression("Length", "Params.pocket8_length")
pocket8.Reversed = True

# Sketch on YZ plane
sketch14 = body.newObject("Sketcher::SketchObject", "Sketch013")
sketch14.AttachmentSupport = (doc.getObject("YZ_Plane"), [""])
sketch14.MapMode = "FlatFace"
sketch14.AttachmentOffset = App.Placement(App.Vector(0, 0, 7.95), App.Rotation())
sketch14.addGeometry(Part.Circle(App.Vector(0, 6, 0), App.Vector(0, 0, 1), 1.2), False)
sketch14.addConstraint([
    Sketcher.Constraint("PointOnObject", 0, 3, -2),
    Sketcher.Constraint("Diameter", 0, Q("2.475 mm")),
    Sketcher.Constraint("DistanceY", -1, 1, 0, 3, Q("6 mm")),
])
pad1 = body.newObject("PartDesign::Pad", "Pad")
pad1.Profile = sketch14
pad1.setExpression("Length", "Params.pad1_length")
pad1.Reversed = True

# Sketch on YZ plane
sketch15 = body.newObject("Sketcher::SketchObject", "Sketch014")
sketch15.AttachmentSupport = (doc.getObject("YZ_Plane"), [""])
sketch15.MapMode = "FlatFace"
sketch15.AttachmentOffset = App.Placement(App.Vector(0, 0, 7.95), App.Rotation())
sketch15.addGeometry(Part.Circle(App.Vector(0, -6, 0), App.Vector(0, 0, 1), 1.2), False)
sketch15.addConstraint([
    Sketcher.Constraint("PointOnObject", 0, 3, -2),
    Sketcher.Constraint("Diameter", 0, Q("2.475 mm")),
    Sketcher.Constraint("DistanceY", 0, 3, -1, 1, Q("6 mm")),
])
pad2 = body.newObject("PartDesign::Pad", "Pad001")
pad2.Profile = sketch15
pad2.setExpression("Length", "Params.pad2_length")
pad2.Reversed = True

# Sketch on YZ plane
sketch16 = body.newObject("Sketcher::SketchObject", "Sketch015")
sketch16.AttachmentSupport = (doc.getObject("YZ_Plane"), [""])
sketch16.MapMode = "FlatFace"
sketch16.AttachmentOffset = App.Placement(App.Vector(0, 0, 8.55), App.Rotation())
sketch16.addGeometry(Part.Circle(App.Vector(6, 0, 0), App.Vector(0, 0, 1), 1.2), False)
sketch16.addConstraint([
    Sketcher.Constraint("PointOnObject", 0, 3, -1),
    Sketcher.Constraint("Diameter", 0, Q("2.475 mm")),
    Sketcher.Constraint("DistanceX", -1, 1, 0, 3, Q("6 mm")),
])
pad3 = body.newObject("PartDesign::Pad", "Pad002")
pad3.Profile = sketch16
pad3.setExpression("Length", "Params.pad3_length")

# Sketch on YZ plane
sketch17 = body.newObject("Sketcher::SketchObject", "Sketch016")
sketch17.AttachmentSupport = (doc.getObject("YZ_Plane"), [""])
sketch17.MapMode = "FlatFace"
sketch17.AttachmentOffset = App.Placement(App.Vector(0, 0, 8.55), App.Rotation())
sketch17.addGeometry(Part.Circle(App.Vector(-6, 0, 0), App.Vector(0, 0, 1), 1.2), False)
sketch17.addConstraint([
    Sketcher.Constraint("PointOnObject", 0, 3, -1),
    Sketcher.Constraint("Diameter", 0, Q("2.475 mm")),
    Sketcher.Constraint("DistanceX", 0, 3, -1, 1, Q("6 mm")),
])
pad4 = body.newObject("PartDesign::Pad", "Pad003")
pad4.Profile = sketch17
pad4.setExpression("Length", "Params.pad4_length")

# Sketch on YZ plane
sketch18 = body.newObject("Sketcher::SketchObject", "Sketch017")
sketch18.AttachmentSupport = (doc.getObject("YZ_Plane"), [""])
sketch18.MapMode = "FlatFace"
sketch18.addGeometry(Part.Circle(App.Vector(0, -6, 0), App.Vector(0, 0, 1), 1.1), False)
sketch18.addConstraint([
    Sketcher.Constraint("PointOnObject", 0, 3, -2),
    Sketcher.Constraint("Diameter", 0, Q("2.25 mm")),
    Sketcher.Constraint("DistanceY", 0, 3, -1, 1, Q("6 mm")),
])
sketch18.setExpression("Constraints[1]", "Params.sketch18_diameter")
doc.recompute()
hole = body.newObject("PartDesign::Hole", "Hole")
hole.Profile = sketch18
hole.ThreadType = "None"
hole.setExpression("Diameter", "Params.hole_diameter")
hole.DepthType = "Dimension"
hole.setExpression("Depth", "Params.hole_depth")
hole.DrillPoint = "Flat"
hole.Reversed = True

# Sketch on YZ plane
sketch19 = body.newObject("Sketcher::SketchObject", "Sketch018")
sketch19.AttachmentSupport = (doc.getObject("YZ_Plane"), [""])
sketch19.MapMode = "FlatFace"
sketch19.addGeometry(Part.Circle(App.Vector(0, 6, 0), App.Vector(0, 0, 1), 1.1), False)
sketch19.addConstraint([
    Sketcher.Constraint("PointOnObject", 0, 3, -2),
    Sketcher.Constraint("Diameter", 0, Q("2.25 mm")),
    Sketcher.Constraint("DistanceY", -1, 1, 0, 3, Q("6 mm")),
])
sketch19.setExpression("Constraints[1]", "Params.sketch19_diameter")
doc.recompute()
hole2 = body.newObject("PartDesign::Hole", "Hole001")
hole2.Profile = sketch19
hole2.ThreadType = "None"
hole2.setExpression("Diameter", "Params.hole2_diameter")
hole2.DepthType = "Dimension"
hole2.setExpression("Depth", "Params.hole2_depth")
hole2.DrillPoint = "Flat"
hole2.Reversed = True

# Sketch on YZ plane
sketch20 = body.newObject("Sketcher::SketchObject", "Sketch019")
sketch20.AttachmentSupport = (doc.getObject("YZ_Plane"), [""])
sketch20.MapMode = "FlatFace"
sketch20.AttachmentOffset = App.Placement(App.Vector(0, 0, 16.5), App.Rotation())
sketch20.addGeometry(Part.Circle(App.Vector(6, 0, 0), App.Vector(0, 0, 1), 1.1), False)
sketch20.addConstraint([
    Sketcher.Constraint("PointOnObject", 0, 3, -1),
    Sketcher.Constraint("Diameter", 0, Q("2.25 mm")),
    Sketcher.Constraint("DistanceX", -1, 1, 0, 3, Q("6 mm")),
])
sketch20.setExpression("Constraints[1]", "Params.sketch20_diameter")
doc.recompute()
hole3 = body.newObject("PartDesign::Hole", "Hole002")
hole3.Profile = sketch20
hole3.ThreadType = "None"
hole3.setExpression("Diameter", "Params.hole3_diameter")
hole3.DepthType = "Dimension"
hole3.setExpression("Depth", "Params.hole3_depth")
hole3.DrillPoint = "Flat"

# Sketch on YZ plane
sketch21 = body.newObject("Sketcher::SketchObject", "Sketch020")
sketch21.AttachmentSupport = (doc.getObject("YZ_Plane"), [""])
sketch21.MapMode = "FlatFace"
sketch21.AttachmentOffset = App.Placement(App.Vector(0, 0, 16.5), App.Rotation())
sketch21.addGeometry(Part.Circle(App.Vector(-6, 0, 0), App.Vector(0, 0, 1), 1.1), False)
sketch21.addConstraint([
    Sketcher.Constraint("PointOnObject", 0, 3, -1),
    Sketcher.Constraint("Diameter", 0, Q("2.25 mm")),
    Sketcher.Constraint("DistanceX", 0, 3, -1, 1, Q("6 mm")),
])
sketch21.setExpression("Constraints[1]", "Params.sketch21_diameter")
doc.recompute()
hole4 = body.newObject("PartDesign::Hole", "Hole003")
hole4.Profile = sketch21
hole4.ThreadType = "None"
hole4.setExpression("Diameter", "Params.hole4_diameter")
hole4.DepthType = "Dimension"
hole4.setExpression("Depth", "Params.hole4_depth")
hole4.DrillPoint = "Flat"

doc.recompute()
